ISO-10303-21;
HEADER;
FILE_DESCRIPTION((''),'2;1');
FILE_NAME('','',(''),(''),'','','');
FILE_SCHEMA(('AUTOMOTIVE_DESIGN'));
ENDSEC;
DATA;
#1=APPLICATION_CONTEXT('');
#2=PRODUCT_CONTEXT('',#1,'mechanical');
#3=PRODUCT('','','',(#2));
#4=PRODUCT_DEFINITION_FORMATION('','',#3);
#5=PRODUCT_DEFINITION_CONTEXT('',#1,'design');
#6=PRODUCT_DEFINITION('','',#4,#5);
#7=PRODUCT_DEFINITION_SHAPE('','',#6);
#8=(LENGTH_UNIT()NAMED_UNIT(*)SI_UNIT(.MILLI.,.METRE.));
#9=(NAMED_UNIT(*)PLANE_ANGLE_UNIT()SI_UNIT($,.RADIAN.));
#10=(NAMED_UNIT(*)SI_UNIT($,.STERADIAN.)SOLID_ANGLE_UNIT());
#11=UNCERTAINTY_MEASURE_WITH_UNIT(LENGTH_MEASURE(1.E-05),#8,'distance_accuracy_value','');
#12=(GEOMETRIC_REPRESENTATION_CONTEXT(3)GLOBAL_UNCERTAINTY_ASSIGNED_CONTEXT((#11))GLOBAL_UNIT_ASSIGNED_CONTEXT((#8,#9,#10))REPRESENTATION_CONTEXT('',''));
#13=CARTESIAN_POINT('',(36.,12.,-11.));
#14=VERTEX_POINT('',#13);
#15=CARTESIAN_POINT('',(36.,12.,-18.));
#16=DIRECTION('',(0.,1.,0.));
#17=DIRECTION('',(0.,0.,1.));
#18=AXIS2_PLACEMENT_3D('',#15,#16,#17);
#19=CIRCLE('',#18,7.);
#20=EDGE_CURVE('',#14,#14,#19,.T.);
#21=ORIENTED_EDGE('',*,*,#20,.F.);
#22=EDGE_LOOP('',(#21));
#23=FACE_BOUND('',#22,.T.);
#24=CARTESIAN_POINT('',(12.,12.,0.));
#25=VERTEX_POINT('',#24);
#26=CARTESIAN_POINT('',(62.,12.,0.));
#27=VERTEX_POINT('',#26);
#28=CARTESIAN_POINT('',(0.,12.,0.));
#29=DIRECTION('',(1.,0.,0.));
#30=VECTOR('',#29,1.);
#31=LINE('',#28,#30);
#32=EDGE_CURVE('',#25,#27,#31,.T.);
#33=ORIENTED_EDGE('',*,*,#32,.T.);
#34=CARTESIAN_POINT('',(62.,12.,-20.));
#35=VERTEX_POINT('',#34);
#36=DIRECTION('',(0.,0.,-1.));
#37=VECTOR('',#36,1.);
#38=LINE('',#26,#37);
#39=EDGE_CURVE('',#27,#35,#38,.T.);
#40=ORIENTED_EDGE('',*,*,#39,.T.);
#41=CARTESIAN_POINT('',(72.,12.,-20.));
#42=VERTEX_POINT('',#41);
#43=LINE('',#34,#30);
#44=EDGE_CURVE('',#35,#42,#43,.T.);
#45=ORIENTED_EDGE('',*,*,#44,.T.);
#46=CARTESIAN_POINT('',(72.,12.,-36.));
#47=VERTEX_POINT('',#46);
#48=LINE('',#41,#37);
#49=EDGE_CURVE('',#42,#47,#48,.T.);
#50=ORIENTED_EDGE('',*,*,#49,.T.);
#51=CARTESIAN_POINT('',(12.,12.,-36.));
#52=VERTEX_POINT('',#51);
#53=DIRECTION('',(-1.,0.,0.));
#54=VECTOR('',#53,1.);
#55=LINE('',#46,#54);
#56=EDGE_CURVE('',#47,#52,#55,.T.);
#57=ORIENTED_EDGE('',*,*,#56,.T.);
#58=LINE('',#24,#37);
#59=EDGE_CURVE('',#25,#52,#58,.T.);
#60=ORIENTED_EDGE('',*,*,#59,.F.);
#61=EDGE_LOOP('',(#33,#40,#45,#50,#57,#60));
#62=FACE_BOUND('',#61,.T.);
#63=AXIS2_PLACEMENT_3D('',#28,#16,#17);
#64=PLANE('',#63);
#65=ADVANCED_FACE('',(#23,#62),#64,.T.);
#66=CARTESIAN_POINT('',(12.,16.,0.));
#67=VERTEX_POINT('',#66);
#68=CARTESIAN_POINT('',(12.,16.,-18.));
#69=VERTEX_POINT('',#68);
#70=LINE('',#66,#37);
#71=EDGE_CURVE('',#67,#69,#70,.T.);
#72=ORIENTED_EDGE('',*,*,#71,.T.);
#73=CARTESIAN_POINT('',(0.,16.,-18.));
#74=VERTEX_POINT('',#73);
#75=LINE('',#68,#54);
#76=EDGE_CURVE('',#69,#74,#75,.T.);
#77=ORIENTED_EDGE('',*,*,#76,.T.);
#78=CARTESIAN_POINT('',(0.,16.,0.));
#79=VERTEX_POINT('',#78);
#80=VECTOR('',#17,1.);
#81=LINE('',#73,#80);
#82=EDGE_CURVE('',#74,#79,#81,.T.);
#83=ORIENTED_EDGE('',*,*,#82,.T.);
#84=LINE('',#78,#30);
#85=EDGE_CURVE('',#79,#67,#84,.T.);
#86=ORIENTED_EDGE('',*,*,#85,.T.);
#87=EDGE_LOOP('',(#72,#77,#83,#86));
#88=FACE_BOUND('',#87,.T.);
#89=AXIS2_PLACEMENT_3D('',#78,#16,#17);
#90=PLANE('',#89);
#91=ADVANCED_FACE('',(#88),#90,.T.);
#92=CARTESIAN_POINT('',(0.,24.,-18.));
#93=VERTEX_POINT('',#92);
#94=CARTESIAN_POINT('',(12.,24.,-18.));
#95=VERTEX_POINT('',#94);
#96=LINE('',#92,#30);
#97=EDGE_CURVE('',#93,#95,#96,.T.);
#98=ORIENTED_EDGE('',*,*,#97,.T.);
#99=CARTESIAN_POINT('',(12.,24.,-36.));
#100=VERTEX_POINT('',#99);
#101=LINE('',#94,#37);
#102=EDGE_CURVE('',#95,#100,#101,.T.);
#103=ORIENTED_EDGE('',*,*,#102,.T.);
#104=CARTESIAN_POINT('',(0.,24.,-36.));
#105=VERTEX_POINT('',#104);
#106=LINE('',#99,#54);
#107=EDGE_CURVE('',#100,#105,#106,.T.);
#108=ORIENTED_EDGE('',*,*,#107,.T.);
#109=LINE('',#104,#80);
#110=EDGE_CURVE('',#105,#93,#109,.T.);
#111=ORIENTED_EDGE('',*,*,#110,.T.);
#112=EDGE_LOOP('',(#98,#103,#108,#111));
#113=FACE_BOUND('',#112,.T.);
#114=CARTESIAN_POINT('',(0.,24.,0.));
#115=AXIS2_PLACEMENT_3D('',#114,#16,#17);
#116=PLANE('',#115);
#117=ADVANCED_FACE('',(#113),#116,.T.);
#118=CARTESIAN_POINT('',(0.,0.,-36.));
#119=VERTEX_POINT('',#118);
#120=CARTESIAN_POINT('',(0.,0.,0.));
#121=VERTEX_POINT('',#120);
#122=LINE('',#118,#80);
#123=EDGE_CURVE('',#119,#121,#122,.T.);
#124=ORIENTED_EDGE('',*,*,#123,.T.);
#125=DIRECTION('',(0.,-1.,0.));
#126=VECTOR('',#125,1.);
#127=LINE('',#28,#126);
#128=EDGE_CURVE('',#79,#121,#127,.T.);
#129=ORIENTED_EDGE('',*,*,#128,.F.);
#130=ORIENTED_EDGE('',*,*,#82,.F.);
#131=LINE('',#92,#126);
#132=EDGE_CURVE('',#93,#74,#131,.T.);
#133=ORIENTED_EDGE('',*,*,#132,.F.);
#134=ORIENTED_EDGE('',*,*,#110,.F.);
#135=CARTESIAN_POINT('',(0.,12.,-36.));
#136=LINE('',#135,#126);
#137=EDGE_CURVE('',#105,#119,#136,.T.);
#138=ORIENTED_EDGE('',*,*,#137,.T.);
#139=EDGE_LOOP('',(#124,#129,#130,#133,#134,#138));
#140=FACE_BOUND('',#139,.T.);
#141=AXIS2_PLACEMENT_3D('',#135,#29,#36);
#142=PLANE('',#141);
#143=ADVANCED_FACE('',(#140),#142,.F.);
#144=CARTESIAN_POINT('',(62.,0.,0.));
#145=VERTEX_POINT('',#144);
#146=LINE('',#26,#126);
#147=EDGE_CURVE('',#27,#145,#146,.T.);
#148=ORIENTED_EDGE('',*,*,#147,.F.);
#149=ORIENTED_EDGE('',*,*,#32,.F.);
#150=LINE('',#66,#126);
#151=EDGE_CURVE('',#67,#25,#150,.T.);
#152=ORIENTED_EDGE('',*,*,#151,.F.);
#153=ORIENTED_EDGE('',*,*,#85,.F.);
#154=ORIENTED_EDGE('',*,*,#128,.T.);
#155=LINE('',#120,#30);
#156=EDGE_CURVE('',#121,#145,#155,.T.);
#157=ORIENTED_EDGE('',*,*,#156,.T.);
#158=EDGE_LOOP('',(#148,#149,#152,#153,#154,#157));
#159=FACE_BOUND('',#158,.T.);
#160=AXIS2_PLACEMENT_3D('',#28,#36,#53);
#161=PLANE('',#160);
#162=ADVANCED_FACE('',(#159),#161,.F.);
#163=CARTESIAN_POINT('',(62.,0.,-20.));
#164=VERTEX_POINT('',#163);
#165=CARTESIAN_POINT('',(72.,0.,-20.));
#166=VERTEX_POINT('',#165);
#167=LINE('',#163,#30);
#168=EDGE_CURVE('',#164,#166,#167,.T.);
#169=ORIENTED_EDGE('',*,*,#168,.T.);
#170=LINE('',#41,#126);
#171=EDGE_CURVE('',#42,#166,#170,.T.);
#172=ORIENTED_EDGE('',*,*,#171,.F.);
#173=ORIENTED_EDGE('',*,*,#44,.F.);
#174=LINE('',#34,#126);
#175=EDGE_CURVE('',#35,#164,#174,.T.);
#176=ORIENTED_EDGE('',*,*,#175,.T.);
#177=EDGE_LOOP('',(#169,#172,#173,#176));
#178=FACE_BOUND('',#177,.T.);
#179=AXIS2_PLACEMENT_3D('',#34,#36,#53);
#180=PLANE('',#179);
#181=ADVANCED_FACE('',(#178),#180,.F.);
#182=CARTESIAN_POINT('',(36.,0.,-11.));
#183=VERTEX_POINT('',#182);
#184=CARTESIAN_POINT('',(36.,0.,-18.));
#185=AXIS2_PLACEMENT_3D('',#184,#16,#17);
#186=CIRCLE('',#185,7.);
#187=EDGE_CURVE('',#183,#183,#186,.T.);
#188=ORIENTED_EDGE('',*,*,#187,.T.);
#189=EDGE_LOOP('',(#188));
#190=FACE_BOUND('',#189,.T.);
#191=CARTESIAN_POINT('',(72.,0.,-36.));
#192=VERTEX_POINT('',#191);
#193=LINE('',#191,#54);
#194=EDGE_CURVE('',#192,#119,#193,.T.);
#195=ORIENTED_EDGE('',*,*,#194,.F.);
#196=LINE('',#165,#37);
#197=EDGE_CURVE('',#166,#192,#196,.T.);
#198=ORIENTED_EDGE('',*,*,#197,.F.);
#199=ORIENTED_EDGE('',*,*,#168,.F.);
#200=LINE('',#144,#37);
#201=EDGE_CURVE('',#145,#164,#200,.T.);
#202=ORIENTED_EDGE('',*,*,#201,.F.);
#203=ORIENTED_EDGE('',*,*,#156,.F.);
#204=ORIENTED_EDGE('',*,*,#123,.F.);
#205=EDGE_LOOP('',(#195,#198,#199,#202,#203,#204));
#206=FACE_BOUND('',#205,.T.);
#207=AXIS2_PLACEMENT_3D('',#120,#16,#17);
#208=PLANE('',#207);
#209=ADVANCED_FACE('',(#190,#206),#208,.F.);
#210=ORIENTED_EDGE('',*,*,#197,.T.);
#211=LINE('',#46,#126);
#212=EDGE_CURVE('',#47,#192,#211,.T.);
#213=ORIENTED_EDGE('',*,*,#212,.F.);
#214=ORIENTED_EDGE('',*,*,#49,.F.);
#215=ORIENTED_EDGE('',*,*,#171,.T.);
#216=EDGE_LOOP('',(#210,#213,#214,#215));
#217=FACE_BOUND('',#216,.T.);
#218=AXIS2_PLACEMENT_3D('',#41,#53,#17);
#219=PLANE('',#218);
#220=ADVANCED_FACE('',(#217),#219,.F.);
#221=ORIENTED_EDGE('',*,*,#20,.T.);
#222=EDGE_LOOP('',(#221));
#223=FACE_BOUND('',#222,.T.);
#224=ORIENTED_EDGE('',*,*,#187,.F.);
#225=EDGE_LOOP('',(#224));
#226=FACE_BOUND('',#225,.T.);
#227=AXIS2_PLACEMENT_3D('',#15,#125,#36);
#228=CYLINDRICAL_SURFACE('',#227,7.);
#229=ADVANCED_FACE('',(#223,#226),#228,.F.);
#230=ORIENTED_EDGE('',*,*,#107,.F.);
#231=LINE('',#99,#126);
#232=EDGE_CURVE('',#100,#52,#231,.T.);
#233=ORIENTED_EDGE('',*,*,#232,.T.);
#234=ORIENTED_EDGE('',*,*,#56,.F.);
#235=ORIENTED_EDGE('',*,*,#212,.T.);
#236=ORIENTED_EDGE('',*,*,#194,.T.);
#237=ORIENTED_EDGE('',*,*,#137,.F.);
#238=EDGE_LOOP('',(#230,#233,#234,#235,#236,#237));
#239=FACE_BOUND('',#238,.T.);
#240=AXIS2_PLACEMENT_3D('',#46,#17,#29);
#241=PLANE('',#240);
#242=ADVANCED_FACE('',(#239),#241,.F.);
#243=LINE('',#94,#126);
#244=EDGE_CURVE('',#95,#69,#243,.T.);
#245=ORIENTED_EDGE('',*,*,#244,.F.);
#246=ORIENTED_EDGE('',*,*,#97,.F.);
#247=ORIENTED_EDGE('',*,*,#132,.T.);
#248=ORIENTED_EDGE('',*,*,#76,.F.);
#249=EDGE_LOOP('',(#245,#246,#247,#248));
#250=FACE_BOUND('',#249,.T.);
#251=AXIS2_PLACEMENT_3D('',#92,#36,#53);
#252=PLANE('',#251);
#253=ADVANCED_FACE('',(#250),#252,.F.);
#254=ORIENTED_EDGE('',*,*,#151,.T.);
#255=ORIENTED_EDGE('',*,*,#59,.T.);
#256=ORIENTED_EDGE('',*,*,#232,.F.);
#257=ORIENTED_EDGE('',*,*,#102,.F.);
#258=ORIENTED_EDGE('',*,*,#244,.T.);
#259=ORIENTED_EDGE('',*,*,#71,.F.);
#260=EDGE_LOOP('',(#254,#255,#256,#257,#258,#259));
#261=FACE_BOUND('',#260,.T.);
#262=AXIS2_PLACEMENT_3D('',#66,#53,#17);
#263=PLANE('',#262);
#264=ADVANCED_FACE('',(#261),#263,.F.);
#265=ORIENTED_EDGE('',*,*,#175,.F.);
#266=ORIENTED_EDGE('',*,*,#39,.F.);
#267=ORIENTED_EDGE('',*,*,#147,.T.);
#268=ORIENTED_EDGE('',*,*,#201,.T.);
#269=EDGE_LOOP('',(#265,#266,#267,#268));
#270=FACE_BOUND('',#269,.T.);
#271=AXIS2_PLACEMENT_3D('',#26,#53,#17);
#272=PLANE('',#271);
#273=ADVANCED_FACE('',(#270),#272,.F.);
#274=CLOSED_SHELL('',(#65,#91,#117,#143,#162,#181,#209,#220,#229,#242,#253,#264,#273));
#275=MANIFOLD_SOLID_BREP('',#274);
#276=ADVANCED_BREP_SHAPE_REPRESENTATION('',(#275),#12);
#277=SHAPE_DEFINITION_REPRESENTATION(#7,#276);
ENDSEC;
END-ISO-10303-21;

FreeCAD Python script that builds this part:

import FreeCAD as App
import Part
import Sketcher

V = App.Vector
Q = App.Units.Quantity


def add_polygon(sketch, points):
    """Adds a closed chain of lines whose ends are joined by coincident constraints."""
    first, n = sketch.GeometryCount, len(points)
    for a, b in zip(points, points[1:] + points[:1]):
        sketch.addGeometry(Part.LineSegment(App.Vector(*a, 0), App.Vector(*b, 0)), False)
    for i in range(n):
        sketch.addConstraint(Sketcher.Constraint("Coincident", first + i, 2, first + (i + 1) % n, 1))

doc = App.newDocument("Part")
body = doc.addObject("PartDesign::Body", "Body")

sketch1 = doc.addObject("Sketcher::SketchObject", "Sketch")
body.addObject(sketch1)
sketch1.AttachmentSupport = (doc.XZ_Plane, [""])
sketch1.MapMode = "FlatFace"
add_polygon(sketch1, [(0, 0), (62, 0), (62, -20), (72, -20), (72, -36), (0, -36)])
sketch1.addGeometry(Part.Circle(V(36, -18, 0), V(0, 0, 1), 7), False)
sketch1.addConstraint([
    Sketcher.Constraint("Horizontal", 0),
    Sketcher.Constraint("Vertical", 1),
    Sketcher.Constraint("Horizontal", 2),
    Sketcher.Constraint("Vertical", 3),
    Sketcher.Constraint("Horizontal", 4),
    Sketcher.Constraint("Vertical", 5),
    Sketcher.Constraint("Coincident", 5, 2, -1, 1),
    Sketcher.Constraint("Diameter", 6, Q("14 mm")),
    Sketcher.Constraint("DistanceX", 0, 1, 0, 2, Q("62 mm")),
    Sketcher.Constraint("DistanceX", 2, 1, 2, 2, Q("10 mm")),
    Sketcher.Constraint("DistanceY", 1, 2, 1, 1, Q("20 mm")),
    Sketcher.Constraint("DistanceY", 3, 2, 3, 1, Q("16 mm")),
    Sketcher.Constraint("DistanceX", -1, 1, 6, 3, Q("36 mm")),
    Sketcher.Constraint("DistanceY", 6, 3, -1, 1, Q("18 mm")),
])
pad1 = doc.addObject("PartDesign::Pad", "Pad")
body.addObject(pad1)
pad1.Profile = sketch1
pad1.Length = 12
pad1.Reversed = True

sketch2 = doc.addObject("Sketcher::SketchObject", "Sketch001")
body.addObject(sketch2)
sketch2.AttachmentSupport = (doc.XZ_Plane, [""])
sketch2.MapMode = "FlatFace"
sketch2.AttachmentOffset = App.Placement(V(0, 0, -12), App.Rotation())
add_polygon(sketch2, [(0, -18), (0, 0), (12, 0), (12, -18)])
sketch2.addConstraint([
    Sketcher.Constraint("Vertical", 0),
    Sketcher.Constraint("Horizontal", 1),
    Sketcher.Constraint("Vertical", 2),
    Sketcher.Constraint("Horizontal", 3),
    Sketcher.Constraint("Coincident", 0, 2, -1, 1),
    Sketcher.Constraint("DistanceX", 1, 1, 1, 2, Q("12 mm")),
    Sketcher.Constraint("DistanceY", 0, 1, 0, 2, Q("18 mm")),
])
pad2 = doc.addObject("PartDesign::Pad", "Pad001")
body.addObject(pad2)
pad2.Profile = sketch2
pad2.Length = 4
pad2.Reversed = True

sketch3 = doc.addObject("Sketcher::SketchObject", "Sketch002")
body.addObject(sketch3)
sketch3.AttachmentSupport = (doc.XZ_Plane, [""])
sketch3.MapMode = "FlatFace"
sketch3.AttachmentOffset = App.Placement(V(0, 0, -12), App.Rotation())
add_polygon(sketch3, [(0, -36), (0, -18), (12, -18), (12, -36)])
sketch3.addConstraint([
    Sketcher.Constraint("Vertical", 0),
    Sketcher.Constraint("Horizontal", 1),
    Sketcher.Constraint("Vertical", 2),
    Sketcher.Constraint("Horizontal", 3),
    Sketcher.Constraint("PointOnObject", 0, 2, -2),
    Sketcher.Constraint("DistanceX", 1, 1, 1, 2, Q("12 mm")),
    Sketcher.Constraint("DistanceY", 0, 1, 0, 2, Q("18 mm")),
    Sketcher.Constraint("DistanceY", 0, 2, -1, 1, Q("18 mm")),
])
pad3 = doc.addObject("PartDesign::Pad", "Pad002")
body.addObject(pad3)
pad3.Profile = sketch3
pad3.Length = 12
pad3.Reversed = True

doc.recompute()
